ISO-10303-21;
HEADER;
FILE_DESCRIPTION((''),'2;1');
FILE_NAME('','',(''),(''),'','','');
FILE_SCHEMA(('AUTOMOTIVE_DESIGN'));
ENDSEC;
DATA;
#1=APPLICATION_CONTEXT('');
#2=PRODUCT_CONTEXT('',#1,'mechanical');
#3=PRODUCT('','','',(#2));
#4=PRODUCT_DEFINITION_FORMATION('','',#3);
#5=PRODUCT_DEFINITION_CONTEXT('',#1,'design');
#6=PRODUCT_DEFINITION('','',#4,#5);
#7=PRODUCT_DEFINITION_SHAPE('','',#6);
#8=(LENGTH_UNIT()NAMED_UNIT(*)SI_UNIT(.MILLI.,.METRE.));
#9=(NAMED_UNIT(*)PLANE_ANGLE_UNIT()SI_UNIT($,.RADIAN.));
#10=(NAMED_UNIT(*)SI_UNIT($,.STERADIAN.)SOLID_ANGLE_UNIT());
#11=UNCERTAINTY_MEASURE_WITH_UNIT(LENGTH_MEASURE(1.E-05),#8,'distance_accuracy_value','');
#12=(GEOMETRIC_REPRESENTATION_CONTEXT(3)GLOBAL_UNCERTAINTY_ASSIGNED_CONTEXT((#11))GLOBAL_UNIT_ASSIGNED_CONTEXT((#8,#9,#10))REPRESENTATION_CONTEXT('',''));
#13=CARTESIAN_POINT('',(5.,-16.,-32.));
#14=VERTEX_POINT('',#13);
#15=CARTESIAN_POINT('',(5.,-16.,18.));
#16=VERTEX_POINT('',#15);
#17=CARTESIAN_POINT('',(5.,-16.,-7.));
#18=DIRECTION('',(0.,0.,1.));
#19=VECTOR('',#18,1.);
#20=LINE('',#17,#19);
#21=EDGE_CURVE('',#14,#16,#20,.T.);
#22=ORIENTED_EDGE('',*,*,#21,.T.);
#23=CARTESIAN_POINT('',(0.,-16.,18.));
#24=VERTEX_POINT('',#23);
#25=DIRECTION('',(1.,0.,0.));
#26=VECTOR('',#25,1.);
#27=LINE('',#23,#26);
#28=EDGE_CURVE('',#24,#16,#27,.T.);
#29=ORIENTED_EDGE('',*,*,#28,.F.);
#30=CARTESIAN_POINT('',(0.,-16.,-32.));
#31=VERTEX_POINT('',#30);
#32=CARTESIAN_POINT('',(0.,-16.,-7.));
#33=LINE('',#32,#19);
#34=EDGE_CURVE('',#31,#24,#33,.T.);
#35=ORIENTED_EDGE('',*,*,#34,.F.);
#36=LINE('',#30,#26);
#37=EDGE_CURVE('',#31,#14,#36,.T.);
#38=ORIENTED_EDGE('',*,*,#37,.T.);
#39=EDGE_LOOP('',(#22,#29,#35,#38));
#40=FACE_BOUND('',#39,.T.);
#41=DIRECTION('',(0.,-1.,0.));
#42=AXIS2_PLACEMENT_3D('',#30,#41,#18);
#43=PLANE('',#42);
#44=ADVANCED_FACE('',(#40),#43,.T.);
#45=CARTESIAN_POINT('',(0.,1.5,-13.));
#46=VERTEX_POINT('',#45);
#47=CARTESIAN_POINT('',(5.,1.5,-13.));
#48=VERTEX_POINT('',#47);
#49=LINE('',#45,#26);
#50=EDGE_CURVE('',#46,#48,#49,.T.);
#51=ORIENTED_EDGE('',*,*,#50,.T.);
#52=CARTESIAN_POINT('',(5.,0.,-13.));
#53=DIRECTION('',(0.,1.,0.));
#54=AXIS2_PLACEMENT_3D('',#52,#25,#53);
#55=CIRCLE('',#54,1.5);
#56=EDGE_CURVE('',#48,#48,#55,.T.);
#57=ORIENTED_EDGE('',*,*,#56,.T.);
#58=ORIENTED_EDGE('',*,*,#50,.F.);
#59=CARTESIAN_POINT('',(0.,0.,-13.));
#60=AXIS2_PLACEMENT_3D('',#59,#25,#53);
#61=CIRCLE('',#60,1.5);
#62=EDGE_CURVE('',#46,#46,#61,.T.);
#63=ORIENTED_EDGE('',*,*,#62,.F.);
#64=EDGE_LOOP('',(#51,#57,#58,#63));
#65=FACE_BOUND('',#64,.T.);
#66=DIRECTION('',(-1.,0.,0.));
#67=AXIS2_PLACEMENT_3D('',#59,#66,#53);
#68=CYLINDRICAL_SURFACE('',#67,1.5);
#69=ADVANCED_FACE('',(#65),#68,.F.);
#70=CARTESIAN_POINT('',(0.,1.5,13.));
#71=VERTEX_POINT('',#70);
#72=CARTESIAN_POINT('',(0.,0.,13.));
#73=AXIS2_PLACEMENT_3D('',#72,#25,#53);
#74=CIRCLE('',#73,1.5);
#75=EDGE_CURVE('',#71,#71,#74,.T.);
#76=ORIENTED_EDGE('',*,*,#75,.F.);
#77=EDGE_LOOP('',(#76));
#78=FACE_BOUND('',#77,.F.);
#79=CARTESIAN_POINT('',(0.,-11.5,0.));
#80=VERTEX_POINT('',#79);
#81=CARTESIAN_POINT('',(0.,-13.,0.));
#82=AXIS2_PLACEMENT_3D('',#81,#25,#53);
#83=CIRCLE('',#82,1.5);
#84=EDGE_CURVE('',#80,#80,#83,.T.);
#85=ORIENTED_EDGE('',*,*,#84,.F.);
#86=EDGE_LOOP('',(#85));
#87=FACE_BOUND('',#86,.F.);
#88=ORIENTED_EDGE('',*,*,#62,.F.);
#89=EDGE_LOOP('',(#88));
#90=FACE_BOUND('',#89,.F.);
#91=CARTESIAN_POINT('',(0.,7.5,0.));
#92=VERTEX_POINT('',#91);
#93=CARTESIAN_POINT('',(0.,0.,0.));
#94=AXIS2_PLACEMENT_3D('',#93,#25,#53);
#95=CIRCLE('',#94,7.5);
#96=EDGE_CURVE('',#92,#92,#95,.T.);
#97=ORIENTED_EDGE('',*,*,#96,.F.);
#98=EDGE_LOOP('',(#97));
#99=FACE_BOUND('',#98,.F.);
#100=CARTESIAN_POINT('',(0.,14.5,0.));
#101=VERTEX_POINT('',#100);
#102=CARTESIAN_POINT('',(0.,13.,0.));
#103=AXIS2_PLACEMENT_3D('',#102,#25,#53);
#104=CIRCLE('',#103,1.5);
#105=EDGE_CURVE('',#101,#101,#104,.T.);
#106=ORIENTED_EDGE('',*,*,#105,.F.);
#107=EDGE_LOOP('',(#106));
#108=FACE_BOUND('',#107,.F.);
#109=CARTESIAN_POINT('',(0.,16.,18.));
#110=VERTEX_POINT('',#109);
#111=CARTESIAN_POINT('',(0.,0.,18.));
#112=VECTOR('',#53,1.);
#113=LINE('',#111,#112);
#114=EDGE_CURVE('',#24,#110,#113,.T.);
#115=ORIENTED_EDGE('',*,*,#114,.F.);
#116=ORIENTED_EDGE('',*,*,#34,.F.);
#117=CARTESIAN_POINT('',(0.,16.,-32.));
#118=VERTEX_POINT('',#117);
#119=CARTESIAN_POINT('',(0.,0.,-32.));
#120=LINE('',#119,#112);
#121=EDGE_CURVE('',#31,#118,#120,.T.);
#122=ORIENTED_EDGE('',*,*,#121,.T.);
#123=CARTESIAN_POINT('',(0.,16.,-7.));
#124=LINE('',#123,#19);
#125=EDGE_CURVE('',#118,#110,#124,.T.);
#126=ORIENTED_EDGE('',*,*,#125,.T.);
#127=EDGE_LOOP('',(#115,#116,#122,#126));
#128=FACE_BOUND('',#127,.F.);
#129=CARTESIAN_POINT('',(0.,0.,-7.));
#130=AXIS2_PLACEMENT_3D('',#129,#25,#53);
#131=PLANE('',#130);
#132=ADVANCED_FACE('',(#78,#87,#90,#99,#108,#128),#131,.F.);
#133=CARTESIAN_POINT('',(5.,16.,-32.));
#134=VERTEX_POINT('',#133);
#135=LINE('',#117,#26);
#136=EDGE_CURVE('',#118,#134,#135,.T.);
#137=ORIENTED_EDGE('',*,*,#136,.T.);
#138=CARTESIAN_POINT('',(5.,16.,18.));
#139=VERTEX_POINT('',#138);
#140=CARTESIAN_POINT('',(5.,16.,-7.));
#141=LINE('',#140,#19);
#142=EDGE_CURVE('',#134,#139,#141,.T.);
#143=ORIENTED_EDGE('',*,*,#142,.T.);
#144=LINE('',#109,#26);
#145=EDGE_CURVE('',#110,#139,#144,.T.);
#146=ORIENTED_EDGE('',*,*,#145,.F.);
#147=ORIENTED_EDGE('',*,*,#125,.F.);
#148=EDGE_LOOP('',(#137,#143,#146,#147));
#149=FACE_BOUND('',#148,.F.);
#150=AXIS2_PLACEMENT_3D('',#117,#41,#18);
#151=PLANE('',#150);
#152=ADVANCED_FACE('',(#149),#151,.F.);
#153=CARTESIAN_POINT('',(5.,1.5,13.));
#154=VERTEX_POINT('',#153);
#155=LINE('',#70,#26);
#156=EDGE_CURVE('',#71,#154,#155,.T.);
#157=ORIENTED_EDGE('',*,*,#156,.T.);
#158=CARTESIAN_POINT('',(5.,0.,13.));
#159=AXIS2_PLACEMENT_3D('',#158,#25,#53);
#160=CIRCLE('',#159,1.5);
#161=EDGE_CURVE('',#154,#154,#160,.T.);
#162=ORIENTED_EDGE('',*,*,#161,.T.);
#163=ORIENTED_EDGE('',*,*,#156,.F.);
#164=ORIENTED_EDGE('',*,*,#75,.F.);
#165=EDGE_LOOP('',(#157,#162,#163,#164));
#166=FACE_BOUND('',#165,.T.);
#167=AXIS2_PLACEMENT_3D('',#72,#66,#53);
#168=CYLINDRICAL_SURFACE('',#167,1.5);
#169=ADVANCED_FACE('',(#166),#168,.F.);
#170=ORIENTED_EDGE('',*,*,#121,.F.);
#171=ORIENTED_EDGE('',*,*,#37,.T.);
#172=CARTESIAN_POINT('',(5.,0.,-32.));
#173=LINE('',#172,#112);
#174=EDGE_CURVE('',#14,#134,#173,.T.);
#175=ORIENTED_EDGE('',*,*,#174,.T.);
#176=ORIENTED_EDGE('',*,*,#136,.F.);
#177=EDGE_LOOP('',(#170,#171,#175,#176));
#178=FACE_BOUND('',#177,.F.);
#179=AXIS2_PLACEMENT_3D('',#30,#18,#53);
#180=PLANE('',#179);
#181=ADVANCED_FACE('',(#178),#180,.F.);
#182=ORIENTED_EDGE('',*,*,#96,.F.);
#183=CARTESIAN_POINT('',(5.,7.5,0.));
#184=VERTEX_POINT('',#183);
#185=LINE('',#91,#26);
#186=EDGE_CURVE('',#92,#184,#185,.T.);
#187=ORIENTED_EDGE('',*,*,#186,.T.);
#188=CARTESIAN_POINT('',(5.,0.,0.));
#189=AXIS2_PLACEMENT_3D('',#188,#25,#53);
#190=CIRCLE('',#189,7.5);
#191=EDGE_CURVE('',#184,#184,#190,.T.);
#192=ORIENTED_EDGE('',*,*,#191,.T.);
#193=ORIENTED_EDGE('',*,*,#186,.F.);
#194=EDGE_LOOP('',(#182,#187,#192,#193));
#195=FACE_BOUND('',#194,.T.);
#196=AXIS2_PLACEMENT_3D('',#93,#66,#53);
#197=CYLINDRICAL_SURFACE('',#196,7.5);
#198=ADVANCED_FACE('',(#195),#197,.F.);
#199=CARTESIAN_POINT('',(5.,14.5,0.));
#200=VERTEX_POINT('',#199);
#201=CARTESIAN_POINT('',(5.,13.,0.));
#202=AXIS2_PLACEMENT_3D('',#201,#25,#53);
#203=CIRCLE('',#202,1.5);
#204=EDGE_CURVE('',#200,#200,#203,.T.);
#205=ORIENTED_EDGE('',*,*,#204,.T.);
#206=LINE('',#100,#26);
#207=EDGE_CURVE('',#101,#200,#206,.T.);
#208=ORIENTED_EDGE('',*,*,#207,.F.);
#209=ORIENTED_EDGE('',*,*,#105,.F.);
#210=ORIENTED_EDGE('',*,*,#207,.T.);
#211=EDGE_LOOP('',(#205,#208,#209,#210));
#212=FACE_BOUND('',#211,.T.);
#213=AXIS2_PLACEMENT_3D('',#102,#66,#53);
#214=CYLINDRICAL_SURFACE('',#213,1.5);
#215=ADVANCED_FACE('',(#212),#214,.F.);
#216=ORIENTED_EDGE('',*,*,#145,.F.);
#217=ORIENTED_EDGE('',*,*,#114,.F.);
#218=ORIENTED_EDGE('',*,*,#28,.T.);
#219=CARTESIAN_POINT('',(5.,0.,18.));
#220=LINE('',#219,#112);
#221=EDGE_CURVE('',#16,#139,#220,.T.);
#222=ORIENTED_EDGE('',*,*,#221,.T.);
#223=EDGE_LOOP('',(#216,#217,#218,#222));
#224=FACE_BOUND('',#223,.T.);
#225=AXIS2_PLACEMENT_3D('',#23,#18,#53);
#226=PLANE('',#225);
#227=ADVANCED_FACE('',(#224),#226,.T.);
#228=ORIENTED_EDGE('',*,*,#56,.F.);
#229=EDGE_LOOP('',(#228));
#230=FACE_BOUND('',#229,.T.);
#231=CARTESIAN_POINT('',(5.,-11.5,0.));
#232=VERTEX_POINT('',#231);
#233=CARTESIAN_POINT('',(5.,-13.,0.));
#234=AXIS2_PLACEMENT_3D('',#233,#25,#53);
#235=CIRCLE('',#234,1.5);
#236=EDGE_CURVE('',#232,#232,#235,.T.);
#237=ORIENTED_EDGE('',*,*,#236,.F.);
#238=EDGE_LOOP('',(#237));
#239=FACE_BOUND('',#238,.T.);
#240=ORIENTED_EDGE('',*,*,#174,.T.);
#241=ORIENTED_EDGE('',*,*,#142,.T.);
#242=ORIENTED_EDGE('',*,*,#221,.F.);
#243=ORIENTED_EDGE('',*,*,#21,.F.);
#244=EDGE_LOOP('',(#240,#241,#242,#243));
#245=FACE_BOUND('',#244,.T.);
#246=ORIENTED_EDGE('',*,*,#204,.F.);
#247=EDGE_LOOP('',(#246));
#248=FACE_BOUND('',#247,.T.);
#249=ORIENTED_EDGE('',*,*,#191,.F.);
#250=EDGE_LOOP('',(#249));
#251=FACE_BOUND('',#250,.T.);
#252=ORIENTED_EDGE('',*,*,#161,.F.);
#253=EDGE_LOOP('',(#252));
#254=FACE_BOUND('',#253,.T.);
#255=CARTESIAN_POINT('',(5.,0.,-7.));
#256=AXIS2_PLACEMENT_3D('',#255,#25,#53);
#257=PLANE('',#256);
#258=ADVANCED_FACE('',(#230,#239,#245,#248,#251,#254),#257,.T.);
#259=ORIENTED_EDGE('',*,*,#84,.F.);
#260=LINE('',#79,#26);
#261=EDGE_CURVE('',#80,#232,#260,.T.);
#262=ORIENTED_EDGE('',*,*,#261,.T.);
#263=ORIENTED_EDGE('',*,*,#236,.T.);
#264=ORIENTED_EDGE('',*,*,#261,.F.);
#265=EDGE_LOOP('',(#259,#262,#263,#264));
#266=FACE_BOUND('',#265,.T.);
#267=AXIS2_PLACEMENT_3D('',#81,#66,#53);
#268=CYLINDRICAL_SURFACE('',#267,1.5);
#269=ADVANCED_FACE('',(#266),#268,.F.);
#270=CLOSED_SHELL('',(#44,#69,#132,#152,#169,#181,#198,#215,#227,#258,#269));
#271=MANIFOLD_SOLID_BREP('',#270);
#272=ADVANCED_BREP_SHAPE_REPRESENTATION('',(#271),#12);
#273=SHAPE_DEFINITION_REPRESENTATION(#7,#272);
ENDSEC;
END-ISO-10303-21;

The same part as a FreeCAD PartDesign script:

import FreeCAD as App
import Part
import Sketcher


def add_polygon(sketch, points):
    """Adds a closed chain of lines whose ends are joined by coincident constraints."""
    first, n = sketch.GeometryCount, len(points)
    for a, b in zip(points, points[1:] + points[:1]):
        sketch.addGeometry(Part.LineSegment(App.Vector(*a, 0), App.Vector(*b, 0)), False)
    for i in range(n):
        sketch.addConstraint(Sketcher.Constraint("Coincident", first + i, 2, first + (i + 1) % n, 1))

doc = App.newDocument("Part")
body = doc.addObject("PartDesign::Body", "Body")

# Sketch on YZ plane
sketch1 = body.newObject("Sketcher::SketchObject", "Sketch")
sketch1.AttachmentSupport = (doc.getObject("YZ_Plane"), [""])
sketch1.MapMode = "FlatFace"
add_polygon(sketch1, [(-16, 18), (-16, -32), (16, -32), (16, 18)])  # lines 0-3
sketch1.addGeometry(Part.Circle(App.Vector(0, -13, 0), App.Vector(0, 0, 1), 1.5), False)  # 4
sketch1.addGeometry(Part.Circle(App.Vector(-13, 0, 0), App.Vector(0, 0, 1), 1.5), False)  # 5
sketch1.addGeometry(Part.Circle(App.Vector(0, 0, 0), App.Vector(0, 0, 1), 7.5), False)  # 6
sketch1.addGeometry(Part.Circle(App.Vector(13, 0, 0), App.Vector(0, 0, 1), 1.5), False)  # 7
sketch1.addGeometry(Part.Circle(App.Vector(0, 13, 0), App.Vector(0, 0, 1), 1.5), False)  # 8
sketch1.addConstraint(Sketcher.Constraint("Vertical", 0))
sketch1.addConstraint(Sketcher.Constraint("Horizontal", 1))
sketch1.addConstraint(Sketcher.Constraint("Vertical", 2))
sketch1.addConstraint(Sketcher.Constraint("Horizontal", 3))
sketch1.addConstraint(Sketcher.Constraint("Coincident", 6, 3, -1, 1))
sketch1.addConstraint(Sketcher.Constraint("Equal", 4, 5))
sketch1.addConstraint(Sketcher.Constraint("Equal", 5, 7))
sketch1.addConstraint(Sketcher.Constraint("Equal", 7, 8))
sketch1.addConstraint(Sketcher.Constraint("Symmetric", 5, 3, 7, 3, -1, 1))
sketch1.addConstraint(Sketcher.Constraint("Symmetric", 4, 3, 8, 3, -1, 1))
sketch1.addConstraint(Sketcher.Constraint("PointOnObject", 4, 3, -2))
sketch1.addConstraint(Sketcher.Constraint("PointOnObject", 5, 3, -1))
sketch1.addConstraint(Sketcher.Constraint("Diameter", 4, 3.0))
sketch1.addConstraint(Sketcher.Constraint("Diameter", 6, 15.0))
sketch1.addConstraint(Sketcher.Constraint("DistanceX", 1, 1, 1, 2, 32.0))
sketch1.addConstraint(Sketcher.Constraint("DistanceY", 0, 2, 0, 1, 50.0))
sketch1.addConstraint(Sketcher.Constraint("DistanceY", 4, 3, -1, 1, 13.0))
sketch1.addConstraint(Sketcher.Constraint("DistanceX", 5, 3, -1, 1, 13.0))
sketch1.addConstraint(Sketcher.Constraint("DistanceX", 0, 2, -1, 1, 16.0))
sketch1.addConstraint(Sketcher.Constraint("DistanceY", 0, 2, -1, 1, 32.0))
pad1 = body.newObject("PartDesign::Pad", "Pad")
pad1.Profile = sketch1
pad1.Length = 5

doc.recompute()
